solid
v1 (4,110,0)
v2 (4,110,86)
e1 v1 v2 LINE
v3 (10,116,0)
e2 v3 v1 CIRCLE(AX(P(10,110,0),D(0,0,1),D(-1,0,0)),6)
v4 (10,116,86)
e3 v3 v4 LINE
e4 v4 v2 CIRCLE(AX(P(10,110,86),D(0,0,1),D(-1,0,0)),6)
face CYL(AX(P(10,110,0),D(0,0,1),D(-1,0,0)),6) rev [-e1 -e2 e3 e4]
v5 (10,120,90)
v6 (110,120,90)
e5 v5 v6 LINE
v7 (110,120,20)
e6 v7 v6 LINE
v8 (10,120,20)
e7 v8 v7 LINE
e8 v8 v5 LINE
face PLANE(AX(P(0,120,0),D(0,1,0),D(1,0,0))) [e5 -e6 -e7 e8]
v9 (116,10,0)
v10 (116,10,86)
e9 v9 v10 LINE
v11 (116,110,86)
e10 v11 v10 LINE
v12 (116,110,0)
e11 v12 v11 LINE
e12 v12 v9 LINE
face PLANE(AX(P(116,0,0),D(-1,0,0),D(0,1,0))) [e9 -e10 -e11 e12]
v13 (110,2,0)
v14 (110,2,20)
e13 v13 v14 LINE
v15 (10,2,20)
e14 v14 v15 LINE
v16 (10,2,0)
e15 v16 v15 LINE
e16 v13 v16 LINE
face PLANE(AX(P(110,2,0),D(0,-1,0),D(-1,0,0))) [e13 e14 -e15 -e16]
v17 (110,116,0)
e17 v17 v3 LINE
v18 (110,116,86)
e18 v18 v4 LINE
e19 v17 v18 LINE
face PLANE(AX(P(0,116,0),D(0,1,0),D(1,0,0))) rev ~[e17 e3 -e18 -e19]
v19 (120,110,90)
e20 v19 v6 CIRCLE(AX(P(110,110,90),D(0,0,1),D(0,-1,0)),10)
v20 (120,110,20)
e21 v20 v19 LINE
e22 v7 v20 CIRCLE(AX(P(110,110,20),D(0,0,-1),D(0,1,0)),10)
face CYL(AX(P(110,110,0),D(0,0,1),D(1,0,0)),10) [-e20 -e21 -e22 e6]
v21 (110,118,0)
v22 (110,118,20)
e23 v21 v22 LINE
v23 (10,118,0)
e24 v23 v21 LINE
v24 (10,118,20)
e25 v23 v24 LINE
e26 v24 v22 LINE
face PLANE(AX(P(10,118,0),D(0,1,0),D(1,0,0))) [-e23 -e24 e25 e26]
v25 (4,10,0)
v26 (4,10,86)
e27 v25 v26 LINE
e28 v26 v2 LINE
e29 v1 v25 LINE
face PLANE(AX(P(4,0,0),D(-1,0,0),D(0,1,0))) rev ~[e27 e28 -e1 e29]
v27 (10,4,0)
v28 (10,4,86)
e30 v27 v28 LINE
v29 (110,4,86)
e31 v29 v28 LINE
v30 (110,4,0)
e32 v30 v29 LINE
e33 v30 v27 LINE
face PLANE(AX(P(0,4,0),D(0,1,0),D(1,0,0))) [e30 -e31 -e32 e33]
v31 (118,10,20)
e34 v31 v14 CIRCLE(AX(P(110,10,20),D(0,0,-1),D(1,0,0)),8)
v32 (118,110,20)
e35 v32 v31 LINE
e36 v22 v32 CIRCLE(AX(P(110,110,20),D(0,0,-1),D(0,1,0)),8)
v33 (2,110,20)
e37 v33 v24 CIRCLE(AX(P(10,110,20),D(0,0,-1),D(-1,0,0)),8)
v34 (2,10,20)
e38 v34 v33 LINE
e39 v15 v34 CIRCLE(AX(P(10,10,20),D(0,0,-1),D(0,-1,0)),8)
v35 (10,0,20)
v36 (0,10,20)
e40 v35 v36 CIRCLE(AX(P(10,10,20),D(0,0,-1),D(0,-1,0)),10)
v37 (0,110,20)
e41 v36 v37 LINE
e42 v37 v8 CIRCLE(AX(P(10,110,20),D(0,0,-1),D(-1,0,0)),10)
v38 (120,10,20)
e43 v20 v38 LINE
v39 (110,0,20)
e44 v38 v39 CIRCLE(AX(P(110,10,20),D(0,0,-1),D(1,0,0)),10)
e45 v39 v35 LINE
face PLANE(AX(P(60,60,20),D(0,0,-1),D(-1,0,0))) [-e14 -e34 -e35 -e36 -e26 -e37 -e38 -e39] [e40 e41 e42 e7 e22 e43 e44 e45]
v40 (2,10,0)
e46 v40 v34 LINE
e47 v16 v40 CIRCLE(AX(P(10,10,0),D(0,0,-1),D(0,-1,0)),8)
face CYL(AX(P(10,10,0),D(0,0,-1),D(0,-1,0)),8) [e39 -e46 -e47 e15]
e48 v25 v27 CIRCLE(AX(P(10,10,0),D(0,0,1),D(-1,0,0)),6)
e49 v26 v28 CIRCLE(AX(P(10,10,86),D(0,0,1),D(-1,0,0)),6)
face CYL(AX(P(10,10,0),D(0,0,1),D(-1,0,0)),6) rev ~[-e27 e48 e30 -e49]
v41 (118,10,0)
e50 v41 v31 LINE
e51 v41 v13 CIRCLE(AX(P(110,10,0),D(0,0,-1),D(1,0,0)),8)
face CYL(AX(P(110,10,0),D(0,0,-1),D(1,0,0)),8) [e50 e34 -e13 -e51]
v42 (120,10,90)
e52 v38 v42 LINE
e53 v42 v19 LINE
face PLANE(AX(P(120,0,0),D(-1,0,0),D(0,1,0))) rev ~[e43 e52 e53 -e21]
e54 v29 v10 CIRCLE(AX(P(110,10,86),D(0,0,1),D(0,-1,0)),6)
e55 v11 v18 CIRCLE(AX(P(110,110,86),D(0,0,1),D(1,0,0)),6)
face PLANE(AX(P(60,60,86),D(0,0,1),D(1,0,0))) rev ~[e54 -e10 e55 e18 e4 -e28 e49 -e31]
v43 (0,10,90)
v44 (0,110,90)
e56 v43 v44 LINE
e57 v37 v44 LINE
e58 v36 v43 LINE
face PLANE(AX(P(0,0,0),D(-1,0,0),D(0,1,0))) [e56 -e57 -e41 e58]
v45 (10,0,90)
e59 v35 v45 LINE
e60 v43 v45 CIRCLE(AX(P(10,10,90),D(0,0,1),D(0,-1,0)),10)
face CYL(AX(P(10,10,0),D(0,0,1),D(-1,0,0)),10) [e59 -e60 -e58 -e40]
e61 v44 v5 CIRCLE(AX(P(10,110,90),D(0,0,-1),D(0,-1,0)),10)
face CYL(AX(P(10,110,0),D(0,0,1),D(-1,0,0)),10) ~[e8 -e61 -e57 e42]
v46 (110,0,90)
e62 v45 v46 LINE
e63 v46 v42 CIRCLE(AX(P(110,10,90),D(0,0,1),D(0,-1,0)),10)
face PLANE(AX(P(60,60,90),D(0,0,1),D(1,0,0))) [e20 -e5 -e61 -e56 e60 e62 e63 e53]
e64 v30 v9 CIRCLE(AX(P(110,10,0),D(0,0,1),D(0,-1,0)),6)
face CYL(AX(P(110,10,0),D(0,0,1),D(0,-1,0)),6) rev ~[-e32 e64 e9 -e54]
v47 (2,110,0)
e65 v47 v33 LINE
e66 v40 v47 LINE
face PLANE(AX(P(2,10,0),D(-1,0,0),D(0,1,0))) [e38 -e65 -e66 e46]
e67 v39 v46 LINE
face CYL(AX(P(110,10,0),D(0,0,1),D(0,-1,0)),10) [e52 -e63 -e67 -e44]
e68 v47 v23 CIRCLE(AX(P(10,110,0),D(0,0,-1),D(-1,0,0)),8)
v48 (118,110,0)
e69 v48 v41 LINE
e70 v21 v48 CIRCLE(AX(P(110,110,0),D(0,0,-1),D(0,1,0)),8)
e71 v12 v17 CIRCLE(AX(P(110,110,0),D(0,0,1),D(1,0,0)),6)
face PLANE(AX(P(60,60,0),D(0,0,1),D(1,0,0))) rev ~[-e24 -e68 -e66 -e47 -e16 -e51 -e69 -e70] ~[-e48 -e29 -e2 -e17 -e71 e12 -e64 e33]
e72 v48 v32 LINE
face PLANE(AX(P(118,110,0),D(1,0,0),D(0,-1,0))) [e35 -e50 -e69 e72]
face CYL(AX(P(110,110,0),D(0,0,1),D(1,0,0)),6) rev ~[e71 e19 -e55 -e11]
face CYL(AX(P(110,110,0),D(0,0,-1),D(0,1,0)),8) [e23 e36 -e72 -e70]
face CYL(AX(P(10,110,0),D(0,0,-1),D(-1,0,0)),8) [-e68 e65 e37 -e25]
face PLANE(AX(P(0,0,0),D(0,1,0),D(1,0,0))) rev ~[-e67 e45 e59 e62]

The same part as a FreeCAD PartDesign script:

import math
import FreeCAD as App
import Part
import Sketcher


def edges_at(feature, points):
    """Names of the edges that pass closest to the given points."""
    edges = feature.Shape.Edges
    near = lambda p: min(range(len(edges)), key=lambda i: edges[i].distToShape(Part.Vertex(*p))[0])
    return sorted({f"Edge{near(p) + 1}" for p in points})


def faces_at(feature, points):
    """Names of the faces that lie closest to the given points."""
    faces = feature.Shape.Faces
    near = lambda p: min(range(len(faces)), key=lambda i: faces[i].distToShape(Part.Vertex(*p))[0])
    return sorted({f"Face{near(p) + 1}" for p in points})


def add_polygon(sketch, points):
    """Adds a closed chain of lines whose ends are joined by coincident constraints."""
    first, n = sketch.GeometryCount, len(points)
    for a, b in zip(points, points[1:] + points[:1]):
        sketch.addGeometry(Part.LineSegment(App.Vector(*a, 0), App.Vector(*b, 0)), False)
    for i in range(n):
        sketch.addConstraint(Sketcher.Constraint("Coincident", first + i, 2, first + (i + 1) % n, 1))

doc = App.newDocument("Part")
body = doc.addObject("PartDesign::Body", "Body")

sketch1 = body.newObject("Sketcher::SketchObject", "Sketch")
sketch1.AttachmentSupport = (doc.getObject("XY_Plane"), [""])
sketch1.MapMode = "FlatFace"
add_polygon(sketch1, [(0, 120), (0, 0), (120, 0), (120, 120)])
sketch1.addConstraint([
    Sketcher.Constraint("Vertical", 0),
    Sketcher.Constraint("Horizontal", 1),
    Sketcher.Constraint("Vertical", 2),
    Sketcher.Constraint("Horizontal", 3),
    Sketcher.Constraint("Coincident", 0, 2, -1, 1),
    Sketcher.Constraint("Equal", 3, 0),
    Sketcher.Constraint("DistanceX", 1, 1, 1, 2, 120.0),
])
pad1 = body.newObject("PartDesign::Pad", "Pad")
pad1.Profile = sketch1
pad1.Length = 90
doc.recompute()

fillet = body.newObject("PartDesign::Fillet", "Fillet")
fillet.Base = (pad1, edges_at(pad1, [
    (0, 0, 45),
    (120, 0, 45),
    (120, 120, 45),
    (0, 120, 45),
]))
fillet.Radius = 10
doc.recompute()

thickness = body.newObject("PartDesign::Thickness", "Thickness")
thickness.Base = (fillet, faces_at(fillet, [(60, 60, 0)]))
thickness.Value = 4
thickness.Reversed = True
thickness.Join = "Intersection"

sketch2 = body.newObject("Sketcher::SketchObject", "Sketch001")
sketch2.AttachmentSupport = (doc.getObject("XY_Plane"), [""])
sketch2.MapMode = "FlatFace"
sketch2.addGeometry([
    Part.LineSegment(App.Vector(10, 120, 0), App.Vector(110, 120, 0)),
    Part.ArcOfCircle(Part.Circle(App.Vector(110, 110, 0), App.Vector(0, 0, 1), 10), math.radians(0), math.radians(90)),
    Part.LineSegment(App.Vector(120, 110, 0), App.Vector(120, 10, 0)),
    Part.ArcOfCircle(Part.Circle(App.Vector(110, 10, 0), App.Vector(0, 0, 1), 10), math.radians(-90), math.radians(0)),
    Part.LineSegment(App.Vector(110, 0, 0), App.Vector(10, 0, 0)),
    Part.ArcOfCircle(Part.Circle(App.Vector(10, 10, 0), App.Vector(0, 0, 1), 10), math.radians(180), math.radians(270)),
    Part.LineSegment(App.Vector(0, 10, 0), App.Vector(0, 110, 0)),
    Part.ArcOfCircle(Part.Circle(App.Vector(10, 110, 0), App.Vector(0, 0, 1), 10), math.radians(90), math.radians(180)),
    Part.LineSegment(App.Vector(110, 118, 0), App.Vector(10, 118, 0)),
    Part.ArcOfCircle(Part.Circle(App.Vector(10, 110, 0), App.Vector(0, 0, 1), 8), math.radians(90), math.radians(180)),
    Part.LineSegment(App.Vector(2, 110, 0), App.Vector(2, 10, 0)),
    Part.ArcOfCircle(Part.Circle(App.Vector(10, 10, 0), App.Vector(0, 0, 1), 8), math.radians(-180), math.radians(-90)),
    Part.LineSegment(App.Vector(10, 2, 0), App.Vector(110, 2, 0)),
    Part.ArcOfCircle(Part.Circle(App.Vector(110, 10, 0), App.Vector(0, 0, 1), 8), math.radians(-90), math.radians(0)),
    Part.LineSegment(App.Vector(118, 10, 0), App.Vector(118, 110, 0)),
    Part.ArcOfCircle(Part.Circle(App.Vector(110, 110, 0), App.Vector(0, 0, 1), 8), math.radians(0), math.radians(90)),
], False)
sketch2.addConstraint([
    Sketcher.Constraint("Tangent", 0, 2, 1, 2),
    Sketcher.Constraint("Tangent", 1, 1, 2, 1),
    Sketcher.Constraint("Tangent", 2, 2, 3, 2),
    Sketcher.Constraint("Tangent", 3, 1, 4, 1),
    Sketcher.Constraint("Tangent", 4, 2, 5, 2),
    Sketcher.Constraint("Tangent", 5, 1, 6, 1),
    Sketcher.Constraint("Tangent", 6, 2, 7, 2),
    Sketcher.Constraint("Tangent", 7, 1, 0, 1),
    Sketcher.Constraint("Tangent", 8, 2, 9, 1),
    Sketcher.Constraint("Tangent", 9, 2, 10, 1),
    Sketcher.Constraint("Tangent", 10, 2, 11, 1),
    Sketcher.Constraint("Tangent", 11, 2, 12, 1),
    Sketcher.Constraint("Tangent", 12, 2, 13, 1),
    Sketcher.Constraint("Tangent", 13, 2, 14, 1),
    Sketcher.Constraint("Tangent", 14, 2, 15, 1),
    Sketcher.Constraint("Tangent", 15, 2, 8, 1),
    Sketcher.Constraint("Horizontal", 0),
    Sketcher.Constraint("Vertical", 2),
    Sketcher.Constraint("Horizontal", 4),
    Sketcher.Constraint("Vertical", 6),
    Sketcher.Constraint("Horizontal", 8),
    Sketcher.Constraint("Vertical", 10),
    Sketcher.Constraint("Horizontal", 12),
    Sketcher.Constraint("Vertical", 14),
    Sketcher.Constraint("Coincident", 9, 3, 7, 3),
    Sketcher.Constraint("Coincident", 11, 3, 5, 3),
    Sketcher.Constraint("Coincident", 13, 3, 3, 3),
    Sketcher.Constraint("Equal", 1, 3),
    Sketcher.Constraint("Equal", 3, 5),
    Sketcher.Constraint("Equal", 5, 7),
    Sketcher.Constraint("Equal", 13, 15),
    Sketcher.Constraint("PointOnObject", 3, 1, -1),
    Sketcher.Constraint("PointOnObject", 5, 1, -2),
    Sketcher.Constraint("Equal", 12, 2),
    Sketcher.Constraint("Radius", 1, 10.0),
    Sketcher.Constraint("Radius", 9, 8.0),
    Sketcher.Constraint("DistanceX", 0, 1, 0, 2, 100.0),
])
pocket1 = body.newObject("PartDesign::Pocket", "Pocket")
pocket1.Profile = sketch2
pocket1.Length = 20
pocket1.Reversed = True

doc.recompute()
